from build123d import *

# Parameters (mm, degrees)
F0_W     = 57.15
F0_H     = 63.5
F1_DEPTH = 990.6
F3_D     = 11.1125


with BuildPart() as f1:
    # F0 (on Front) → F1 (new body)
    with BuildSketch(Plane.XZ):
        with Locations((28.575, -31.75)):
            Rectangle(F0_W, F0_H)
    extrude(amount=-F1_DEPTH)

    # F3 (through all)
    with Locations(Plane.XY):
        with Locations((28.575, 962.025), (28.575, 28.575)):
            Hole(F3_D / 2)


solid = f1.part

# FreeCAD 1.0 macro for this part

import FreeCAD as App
import Part
import Sketcher
from FreeCAD import Vector
Q = App.Units.Quantity


def add_polygon(sketch, points):
    """Adds a closed chain of lines whose ends are joined by coincident constraints."""
    first, n = sketch.GeometryCount, len(points)
    for a, b in zip(points, points[1:] + points[:1]):
        sketch.addGeometry(Part.LineSegment(App.Vector(*a, 0), App.Vector(*b, 0)), False)
    for i in range(n):
        sketch.addConstraint(Sketcher.Constraint("Coincident", first + i, 2, first + (i + 1) % n, 1))

doc = App.newDocument("Part")
body = doc.addObject("PartDesign::Body", "Body")

# Sketch on XZ plane
sketch1 = body.newObject("Sketcher::SketchObject", "Sketch")
sketch1.AttachmentSupport = (doc.getObject("XZ_Plane"), [""])
sketch1.MapMode = "FlatFace"
add_polygon(sketch1, [(0, 0), (0, -64), (57, -64), (57, 0)])  # lines 0-3
sketch1.addConstraint([
    Sketcher.Constraint("Vertical", 0),
    Sketcher.Constraint("Horizontal", 1),
    Sketcher.Constraint("Vertical", 2),
    Sketcher.Constraint("Horizontal", 3),
    Sketcher.Constraint("Coincident", 3, 2, -1, 1),
    Sketcher.Constraint("DistanceY", 0, 2, 0, 1, Q("2.5 in")),
    Sketcher.Constraint("DistanceX", 1, 1, 1, 2, Q("2.25 in")),
])
pad1 = body.newObject("PartDesign::Pad", "Pad")
pad1.Profile = sketch1
pad1.Length = Q("39 in")
pad1.Reversed = True

# Sketch on XY plane
sketch2 = body.newObject("Sketcher::SketchObject", "Sketch001")
sketch2.AttachmentSupport = (doc.getObject("XY_Plane"), [""])
sketch2.MapMode = "FlatFace"
sketch2.addGeometry([
    Part.Circle(Vector(29, 962, 0), Vector(0, 0, 1), 6),
    Part.Circle(Vector(29, 29, 0), Vector(0, 0, 1), 6),
], False)
sketch2.addConstraint([
    Sketcher.Constraint("Equal", 0, 1),
    Sketcher.Constraint("Vertical", 0, 3, 1, 3),
    Sketcher.Constraint("Diameter", 0, Q("0.4375 in")),
    Sketcher.Constraint("DistanceY", 1, 3, 0, 3, Q("36.75 in")),
    Sketcher.Constraint("DistanceX", -1, 1, 0, 3, Q("1.125 in")),
    Sketcher.Constraint("DistanceY", -1, 1, 0, 3, Q("37.875 in")),
])
doc.recompute()
hole = body.newObject("PartDesign::Hole", "Hole")
hole.Profile = sketch2
hole.ThreadType = "None"
hole.Diameter = Q("0.4375 in")
hole.DepthType = "ThroughAll"

doc.recompute()
